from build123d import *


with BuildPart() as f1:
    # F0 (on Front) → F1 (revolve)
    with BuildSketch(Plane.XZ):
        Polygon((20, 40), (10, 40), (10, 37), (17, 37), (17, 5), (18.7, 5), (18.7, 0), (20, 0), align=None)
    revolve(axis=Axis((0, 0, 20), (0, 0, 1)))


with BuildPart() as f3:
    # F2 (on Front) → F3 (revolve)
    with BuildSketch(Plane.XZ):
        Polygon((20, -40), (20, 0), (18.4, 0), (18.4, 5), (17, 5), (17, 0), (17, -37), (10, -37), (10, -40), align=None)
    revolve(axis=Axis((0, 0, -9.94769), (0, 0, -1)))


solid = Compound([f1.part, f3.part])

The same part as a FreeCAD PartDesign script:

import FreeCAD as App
import Part
import Sketcher
Q = App.Units.Quantity

doc = App.newDocument("Part")
params = doc.addObject("Spreadsheet::Sheet", "Params")
for row, (alias, value) in enumerate([
    ("sketch1_width", "10 mm"),
    ("sketch1_width2", "7 mm"),
    ("sketch1_height", "3 mm"),
    ("sketch1_height2", "32 mm"),
    ("sketch1_height3", "5 mm"),
    ("revolution_angle", "360 deg"),
    ("sketch2_width", "7 mm"),
    ("sketch2_width2", "10 mm"),
    ("sketch2_height", "40 mm"),
    ("sketch2_height2", "5 mm"),
    ("sketch2_height3", "42 mm"),
    ("revolution2_angle", "360 deg"),
], start=1):
    params.set(f"A{row}", alias)
    params.set(f"B{row}", "=" + value)
    params.setAlias(f"B{row}", alias)

body = doc.addObject("PartDesign::Body", "Body")

# Sketch on XZ plane
sketch1 = body.newObject("Sketcher::SketchObject", "Sketch")
sketch1.AttachmentSupport = (doc.getObject("XZ_Plane"), [""])
sketch1.MapMode = "FlatFace"
sketch1.addGeometry(Part.LineSegment(App.Vector(20, 40, 0), App.Vector(10, 40, 0)), False)
sketch1.addGeometry(Part.LineSegment(App.Vector(10, 40, 0), App.Vector(10, 37, 0)), False)
sketch1.addGeometry(Part.LineSegment(App.Vector(10, 37, 0), App.Vector(17, 37, 0)), False)
sketch1.addGeometry(Part.LineSegment(App.Vector(17, 37, 0), App.Vector(17, 5, 0)), False)
sketch1.addGeometry(Part.LineSegment(App.Vector(17, 5, 0), App.Vector(18.7, 5, 0)), False)
sketch1.addGeometry(Part.LineSegment(App.Vector(18.7, 5, 0), App.Vector(18.7, 0, 0)), False)
sketch1.addGeometry(Part.LineSegment(App.Vector(18.7, 0, 0), App.Vector(20, 0, 0)), False)
sketch1.addGeometry(Part.LineSegment(App.Vector(20, 0, 0), App.Vector(20, 40, 0)), False)
sketch1.addConstraint(Sketcher.Constraint("Coincident", 0, 2, 1, 1))
sketch1.addConstraint(Sketcher.Constraint("Coincident", 1, 2, 2, 1))
sketch1.addConstraint(Sketcher.Constraint("Coincident", 2, 2, 3, 1))
sketch1.addConstraint(Sketcher.Constraint("Coincident", 3, 2, 4, 1))
sketch1.addConstraint(Sketcher.Constraint("Coincident", 4, 2, 5, 1))
sketch1.addConstraint(Sketcher.Constraint("Coincident", 5, 2, 6, 1))
sketch1.addConstraint(Sketcher.Constraint("Coincident", 6, 2, 7, 1))
sketch1.addConstraint(Sketcher.Constraint("Coincident", 7, 2, 0, 1))
sketch1.addConstraint(Sketcher.Constraint("Horizontal", 0))
sketch1.addConstraint(Sketcher.Constraint("Vertical", 1))
sketch1.addConstraint(Sketcher.Constraint("Horizontal", 2))
sketch1.addConstraint(Sketcher.Constraint("Vertical", 3))
sketch1.addConstraint(Sketcher.Constraint("Horizontal", 4))
sketch1.addConstraint(Sketcher.Constraint("Vertical", 5))
sketch1.addConstraint(Sketcher.Constraint("Horizontal", 6))
sketch1.addConstraint(Sketcher.Constraint("Vertical", 7))
sketch1.addConstraint(Sketcher.Constraint("PointOnObject", 5, 2, -1))
sketch1.addConstraint(Sketcher.Constraint("DistanceX", 0, 2, 0, 1, Q("10 mm")))
sketch1.addConstraint(Sketcher.Constraint("DistanceX", 2, 1, 2, 2, Q("7 mm")))
sketch1.addConstraint(Sketcher.Constraint("DistanceY", 1, 2, 1, 1, Q("3 mm")))
sketch1.addConstraint(Sketcher.Constraint("DistanceY", 3, 2, 3, 1, Q("32 mm")))
sketch1.addConstraint(Sketcher.Constraint("DistanceY", 5, 2, 5, 1, Q("5 mm")))
sketch1.addConstraint(Sketcher.Constraint("DistanceX", 4, 1, 4, 2, Q("1.7 mm")))
sketch1.addConstraint(Sketcher.Constraint("DistanceX", -1, 1, 0, 2, Q("10 mm")))
sketch1.setExpression("Constraints[17]", "Params.sketch1_width")
sketch1.setExpression("Constraints[18]", "Params.sketch1_width2")
sketch1.setExpression("Constraints[19]", "Params.sketch1_height")
sketch1.setExpression("Constraints[20]", "Params.sketch1_height2")
sketch1.setExpression("Constraints[21]", "Params.sketch1_height3")
revolution = body.newObject("PartDesign::Revolution", "Revolution")
revolution.Profile = sketch1
revolution.ReferenceAxis = (sketch1, ["V_Axis"])
revolution.setExpression("Angle", "Params.revolution_angle")
body2 = doc.addObject("PartDesign::Body", "Body001")

# Sketch on XZ plane
sketch2 = body2.newObject("Sketcher::SketchObject", "Sketch001")
sketch2.AttachmentSupport = (doc.getObject("XZ_Plane001"), [""])
sketch2.MapMode = "FlatFace"
sketch2.addGeometry(Part.LineSegment(App.Vector(20, -40, 0), App.Vector(20, 0, 0)), False)
sketch2.addGeometry(Part.LineSegment(App.Vector(20, 0, 0), App.Vector(18.4, 0, 0)), False)
sketch2.addGeometry(Part.LineSegment(App.Vector(18.4, 0, 0), App.Vector(18.4, 5, 0)), False)
sketch2.addGeometry(Part.LineSegment(App.Vector(18.4, 5, 0), App.Vector(17, 5, 0)), False)
sketch2.addGeometry(Part.LineSegment(App.Vector(17, 5, 0), App.Vector(17, -37, 0)), False)
sketch2.addGeometry(Part.LineSegment(App.Vector(17, -37, 0), App.Vector(10, -37, 0)), False)
sketch2.addGeometry(Part.LineSegment(App.Vector(10, -37, 0), App.Vector(10, -40, 0)), False)
sketch2.addGeometry(Part.LineSegment(App.Vector(10, -40, 0), App.Vector(20, -40, 0)), False)
sketch2.addConstraint(Sketcher.Constraint("Coincident", 0, 2, 1, 1))
sketch2.addConstraint(Sketcher.Constraint("Coincident", 1, 2, 2, 1))
sketch2.addConstraint(Sketcher.Constraint("Coincident", 2, 2, 3, 1))
sketch2.addConstraint(Sketcher.Constraint("Coincident", 3, 2, 4, 1))
sketch2.addConstraint(Sketcher.Constraint("Coincident", 4, 2, 5, 1))
sketch2.addConstraint(Sketcher.Constraint("Coincident", 5, 2, 6, 1))
sketch2.addConstraint(Sketcher.Constraint("Coincident", 6, 2, 7, 1))
sketch2.addConstraint(Sketcher.Constraint("Coincident", 7, 2, 0, 1))
sketch2.addConstraint(Sketcher.Constraint("Vertical", 0))
sketch2.addConstraint(Sketcher.Constraint("Horizontal", 1))
sketch2.addConstraint(Sketcher.Constraint("Vertical", 2))
sketch2.addConstraint(Sketcher.Constraint("Horizontal", 3))
sketch2.addConstraint(Sketcher.Constraint("Vertical", 4))
sketch2.addConstraint(Sketcher.Constraint("Horizontal", 5))
sketch2.addConstraint(Sketcher.Constraint("Vertical", 6))
sketch2.addConstraint(Sketcher.Constraint("Horizontal", 7))
sketch2.addConstraint(Sketcher.Constraint("PointOnObject", 0, 2, -1))
sketch2.addConstraint(Sketcher.Constraint("DistanceX", 5, 2, 5, 1, Q("7 mm")))
sketch2.addConstraint(Sketcher.Constraint("DistanceX", 7, 1, 7, 2, Q("10 mm")))
sketch2.addConstraint(Sketcher.Constraint("DistanceY", 0, 1, 0, 2, Q("40 mm")))
sketch2.addConstraint(Sketcher.Constraint("DistanceY", 2, 1, 2, 2, Q("5 mm")))
sketch2.addConstraint(Sketcher.Constraint("DistanceY", 4, 2, 4, 1, Q("42 mm")))
sketch2.addConstraint(Sketcher.Constraint("DistanceX", 1, 2, 1, 1, Q("1.6 mm")))
sketch2.addConstraint(Sketcher.Constraint("DistanceX", -1, 1, 0, 2, Q("20 mm")))
sketch2.setExpression("Constraints[17]", "Params.sketch2_width")
sketch2.setExpression("Constraints[18]", "Params.sketch2_width2")
sketch2.setExpression("Constraints[19]", "Params.sketch2_height")
sketch2.setExpression("Constraints[20]", "Params.sketch2_height2")
sketch2.setExpression("Constraints[21]", "Params.sketch2_height3")
revolution2 = body2.newObject("PartDesign::Revolution", "Revolution001")
revolution2.Profile = sketch2
revolution2.ReferenceAxis = (sketch2, ["V_Axis"])
revolution2.setExpression("Angle", "Params.revolution2_angle")

doc.recompute()
